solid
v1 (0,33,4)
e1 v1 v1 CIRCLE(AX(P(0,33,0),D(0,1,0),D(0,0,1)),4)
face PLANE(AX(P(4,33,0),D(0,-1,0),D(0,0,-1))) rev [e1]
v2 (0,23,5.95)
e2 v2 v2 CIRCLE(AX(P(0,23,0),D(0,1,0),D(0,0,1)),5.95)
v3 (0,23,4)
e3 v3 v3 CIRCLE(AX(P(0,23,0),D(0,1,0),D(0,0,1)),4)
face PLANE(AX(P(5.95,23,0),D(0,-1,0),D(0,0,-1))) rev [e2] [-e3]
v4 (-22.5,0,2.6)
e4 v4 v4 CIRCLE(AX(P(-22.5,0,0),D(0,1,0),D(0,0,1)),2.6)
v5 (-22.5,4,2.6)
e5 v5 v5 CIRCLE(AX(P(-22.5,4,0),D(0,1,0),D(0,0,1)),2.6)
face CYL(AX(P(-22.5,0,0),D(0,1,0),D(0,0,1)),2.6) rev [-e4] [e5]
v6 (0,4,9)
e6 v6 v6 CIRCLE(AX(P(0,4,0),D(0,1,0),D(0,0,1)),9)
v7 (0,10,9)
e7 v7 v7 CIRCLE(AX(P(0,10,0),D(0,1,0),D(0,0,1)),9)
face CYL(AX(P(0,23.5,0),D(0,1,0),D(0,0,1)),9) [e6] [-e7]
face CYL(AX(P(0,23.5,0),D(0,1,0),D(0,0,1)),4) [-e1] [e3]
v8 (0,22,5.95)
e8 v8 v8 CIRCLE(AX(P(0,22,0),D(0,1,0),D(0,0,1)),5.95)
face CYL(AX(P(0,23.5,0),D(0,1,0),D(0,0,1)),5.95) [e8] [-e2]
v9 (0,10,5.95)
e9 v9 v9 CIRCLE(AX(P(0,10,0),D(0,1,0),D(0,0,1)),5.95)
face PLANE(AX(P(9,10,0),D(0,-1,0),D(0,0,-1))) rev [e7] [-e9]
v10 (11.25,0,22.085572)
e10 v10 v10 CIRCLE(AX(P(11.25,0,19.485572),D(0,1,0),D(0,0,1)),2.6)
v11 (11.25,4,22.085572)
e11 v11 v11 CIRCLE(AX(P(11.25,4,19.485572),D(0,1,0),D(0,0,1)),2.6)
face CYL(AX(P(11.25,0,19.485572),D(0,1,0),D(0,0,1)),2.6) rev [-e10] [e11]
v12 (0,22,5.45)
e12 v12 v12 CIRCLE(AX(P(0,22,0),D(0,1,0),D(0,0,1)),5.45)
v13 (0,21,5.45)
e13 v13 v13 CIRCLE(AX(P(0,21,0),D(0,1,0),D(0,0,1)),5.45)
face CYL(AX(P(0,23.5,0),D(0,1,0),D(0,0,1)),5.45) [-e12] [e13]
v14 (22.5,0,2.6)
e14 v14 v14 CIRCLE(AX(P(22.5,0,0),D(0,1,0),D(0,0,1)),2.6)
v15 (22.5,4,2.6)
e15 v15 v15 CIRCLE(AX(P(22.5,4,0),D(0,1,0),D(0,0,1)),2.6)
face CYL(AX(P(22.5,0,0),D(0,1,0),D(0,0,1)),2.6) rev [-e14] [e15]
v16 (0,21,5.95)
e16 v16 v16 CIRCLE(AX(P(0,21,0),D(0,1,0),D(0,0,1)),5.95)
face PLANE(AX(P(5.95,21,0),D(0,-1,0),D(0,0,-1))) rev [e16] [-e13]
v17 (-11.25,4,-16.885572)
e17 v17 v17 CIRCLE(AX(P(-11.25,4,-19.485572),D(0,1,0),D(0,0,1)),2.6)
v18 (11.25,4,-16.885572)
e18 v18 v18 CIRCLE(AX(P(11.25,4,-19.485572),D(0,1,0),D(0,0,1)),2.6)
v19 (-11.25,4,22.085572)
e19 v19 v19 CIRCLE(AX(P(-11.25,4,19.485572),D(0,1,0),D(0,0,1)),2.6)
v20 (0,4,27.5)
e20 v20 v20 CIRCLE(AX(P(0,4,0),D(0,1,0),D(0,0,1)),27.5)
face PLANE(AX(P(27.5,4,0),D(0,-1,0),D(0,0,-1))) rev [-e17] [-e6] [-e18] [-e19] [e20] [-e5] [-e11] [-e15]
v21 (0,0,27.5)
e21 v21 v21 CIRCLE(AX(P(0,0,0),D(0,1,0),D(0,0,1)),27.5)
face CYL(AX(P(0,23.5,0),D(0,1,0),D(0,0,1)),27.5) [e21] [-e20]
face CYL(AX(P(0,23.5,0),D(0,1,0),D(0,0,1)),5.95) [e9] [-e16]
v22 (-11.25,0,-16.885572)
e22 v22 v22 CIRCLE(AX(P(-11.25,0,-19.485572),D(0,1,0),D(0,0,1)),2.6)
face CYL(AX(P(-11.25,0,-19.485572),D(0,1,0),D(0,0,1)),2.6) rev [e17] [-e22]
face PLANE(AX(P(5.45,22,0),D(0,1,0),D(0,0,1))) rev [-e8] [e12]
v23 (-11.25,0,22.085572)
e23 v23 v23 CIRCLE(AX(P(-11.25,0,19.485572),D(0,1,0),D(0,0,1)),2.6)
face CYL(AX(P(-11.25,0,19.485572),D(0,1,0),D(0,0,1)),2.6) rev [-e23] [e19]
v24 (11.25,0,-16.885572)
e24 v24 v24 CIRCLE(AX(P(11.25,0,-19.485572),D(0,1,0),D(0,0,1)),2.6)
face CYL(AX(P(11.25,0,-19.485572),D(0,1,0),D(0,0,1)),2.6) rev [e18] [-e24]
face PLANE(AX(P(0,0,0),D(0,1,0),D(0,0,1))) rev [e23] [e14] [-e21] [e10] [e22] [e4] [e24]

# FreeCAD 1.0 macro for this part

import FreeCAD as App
import Part
import Sketcher
from FreeCAD import Vector

doc = App.newDocument("Part")
body = doc.addObject("PartDesign::Body", "Body")

# Sketch on XY plane
sketch1 = body.newObject("Sketcher::SketchObject", "Sketch")
sketch1.AttachmentSupport = (doc.getObject("XY_Plane"), [""])
sketch1.MapMode = "FlatFace"
sketch1.addGeometry([
    Part.LineSegment(Vector(0, 0, 0), Vector(27.5, 0, 0)),  # 0
    Part.LineSegment(Vector(27.5, 0, 0), Vector(27.5, 4, 0)),  # 1
    Part.LineSegment(Vector(27.5, 4, 0), Vector(9, 4, 0)),  # 2
    Part.LineSegment(Vector(9, 4, 0), Vector(9, 10, 0)),  # 3
    Part.LineSegment(Vector(9, 10, 0), Vector(6, 10, 0)),  # 4
    Part.LineSegment(Vector(6, 10, 0), Vector(6, 21, 0)),  # 5
    Part.LineSegment(Vector(6, 21, 0), Vector(5.5, 21, 0)),  # 6
    Part.LineSegment(Vector(5.5, 21, 0), Vector(5.5, 22, 0)),  # 7
    Part.LineSegment(Vector(5.5, 22, 0), Vector(6, 22, 0)),  # 8
    Part.LineSegment(Vector(6, 22, 0), Vector(6, 23, 0)),  # 9
    Part.LineSegment(Vector(6, 23, 0), Vector(4, 23, 0)),  # 10
    Part.LineSegment(Vector(4, 23, 0), Vector(4, 33, 0)),  # 11
    Part.LineSegment(Vector(4, 33, 0), Vector(0, 33, 0)),  # 12
    Part.LineSegment(Vector(0, 33, 0), Vector(0, 0, 0)),  # 13
], False)
sketch1.addConstraint([
    Sketcher.Constraint("Coincident", 0, 2, 1, 1),
    Sketcher.Constraint("Coincident", 1, 2, 2, 1),
    Sketcher.Constraint("Coincident", 2, 2, 3, 1),
    Sketcher.Constraint("Coincident", 3, 2, 4, 1),
    Sketcher.Constraint("Coincident", 4, 2, 5, 1),
    Sketcher.Constraint("Coincident", 5, 2, 6, 1),
    Sketcher.Constraint("Coincident", 6, 2, 7, 1),
    Sketcher.Constraint("Coincident", 7, 2, 8, 1),
    Sketcher.Constraint("Coincident", 8, 2, 9, 1),
    Sketcher.Constraint("Coincident", 9, 2, 10, 1),
    Sketcher.Constraint("Coincident", 10, 2, 11, 1),
    Sketcher.Constraint("Coincident", 11, 2, 12, 1),
    Sketcher.Constraint("Coincident", 12, 2, 13, 1),
    Sketcher.Constraint("Coincident", 13, 2, 0, 1),
    Sketcher.Constraint("Horizontal", 0),
    Sketcher.Constraint("Vertical", 1),
    Sketcher.Constraint("Horizontal", 2),
    Sketcher.Constraint("Vertical", 3),
    Sketcher.Constraint("Horizontal", 4),
    Sketcher.Constraint("Vertical", 5),
    Sketcher.Constraint("Horizontal", 6),
    Sketcher.Constraint("Vertical", 7),
    Sketcher.Constraint("Horizontal", 8),
    Sketcher.Constraint("Vertical", 9),
    Sketcher.Constraint("Horizontal", 10),
    Sketcher.Constraint("Vertical", 11),
    Sketcher.Constraint("Horizontal", 12),
    Sketcher.Constraint("Vertical", 13),
    Sketcher.Constraint("Coincident", 13, 2, -1, 1),
    Sketcher.Constraint("Vertical", 5, 2, 8, 2),
    Sketcher.Constraint("Equal", 12, 1),
    Sketcher.Constraint("Equal", 7, 9),
    Sketcher.Constraint("DistanceX", 12, 2, 12, 1, 4.0),
    Sketcher.Constraint("DistanceY", 3, 1, 3, 2, 6.0),
    Sketcher.Constraint("DistanceY", 5, 1, 5, 2, 11.0),
    Sketcher.Constraint("DistanceY", 7, 1, 7, 2, 1.0),
    Sketcher.Constraint("DistanceY", 11, 1, 11, 2, 10.0),
    Sketcher.Constraint("DistanceX", 0, 1, 0, 2, 27.5),
    Sketcher.Constraint("DistanceX", 2, 2, 2, 1, 18.5),
    Sketcher.Constraint("DistanceX", 6, 2, 6, 1, 0.5),
    Sketcher.Constraint("DistanceX", 4, 2, 4, 1, 3.05),
])
revolution = body.newObject("PartDesign::Revolution", "Revolution")
revolution.Profile = sketch1
revolution.ReferenceAxis = (sketch1, ["V_Axis"])
revolution.Angle = 360

# Sketch on XZ plane
sketch2 = body.newObject("Sketcher::SketchObject", "Sketch001")
sketch2.AttachmentSupport = (doc.getObject("XZ_Plane"), [""])
sketch2.MapMode = "FlatFace"
sketch2.AttachmentOffset = App.Placement(Vector(0, 0, -4), App.Rotation())
sketch2.addGeometry([
    Part.Circle(Vector(22.5, 0, 0), Vector(0, 0, 1), 2.6),  # 0
    Part.Circle(Vector(11.2, 19.5, 0), Vector(0, 0, 1), 2.6),  # 1
    Part.Circle(Vector(-11.2, 19.5, 0), Vector(0, 0, 1), 2.6),  # 2
    Part.Circle(Vector(-22.5, 0, 0), Vector(0, 0, 1), 2.6),  # 3
    Part.Circle(Vector(-11.2, -19.5, 0), Vector(0, 0, 1), 2.6),  # 4
    Part.Circle(Vector(11.2, -19.5, 0), Vector(0, 0, 1), 2.6),  # 5
], False)
sketch2.addConstraint([
    Sketcher.Constraint("Equal", 0, 1),
    Sketcher.Constraint("Equal", 1, 2),
    Sketcher.Constraint("Equal", 2, 3),
    Sketcher.Constraint("Equal", 3, 4),
    Sketcher.Constraint("Equal", 4, 5),
    Sketcher.Constraint("Symmetric", 0, 3, 3, 3, -1, 1),
    Sketcher.Constraint("Symmetric", 1, 3, 4, 3, -1, 1),
    Sketcher.Constraint("Symmetric", 2, 3, 5, 3, -1, 1),
    Sketcher.Constraint("Symmetric", 1, 3, 2, 3, -2),
    Sketcher.Constraint("PointOnObject", 0, 3, -1),
    Sketcher.Constraint("Diameter", 0, 5.2),
    Sketcher.Constraint("DistanceX", 3, 3, 0, 3, 45.0),
    Sketcher.Constraint("DistanceX", 2, 3, 1, 3, 22.5),
    Sketcher.Constraint("DistanceY", -1, 1, 1, 3, 19.485572),
])
pocket1 = body.newObject("PartDesign::Pocket", "Pocket")
pocket1.Profile = sketch2
pocket1.Type = "ThroughAll"
pocket1.Reversed = True

doc.recompute()
